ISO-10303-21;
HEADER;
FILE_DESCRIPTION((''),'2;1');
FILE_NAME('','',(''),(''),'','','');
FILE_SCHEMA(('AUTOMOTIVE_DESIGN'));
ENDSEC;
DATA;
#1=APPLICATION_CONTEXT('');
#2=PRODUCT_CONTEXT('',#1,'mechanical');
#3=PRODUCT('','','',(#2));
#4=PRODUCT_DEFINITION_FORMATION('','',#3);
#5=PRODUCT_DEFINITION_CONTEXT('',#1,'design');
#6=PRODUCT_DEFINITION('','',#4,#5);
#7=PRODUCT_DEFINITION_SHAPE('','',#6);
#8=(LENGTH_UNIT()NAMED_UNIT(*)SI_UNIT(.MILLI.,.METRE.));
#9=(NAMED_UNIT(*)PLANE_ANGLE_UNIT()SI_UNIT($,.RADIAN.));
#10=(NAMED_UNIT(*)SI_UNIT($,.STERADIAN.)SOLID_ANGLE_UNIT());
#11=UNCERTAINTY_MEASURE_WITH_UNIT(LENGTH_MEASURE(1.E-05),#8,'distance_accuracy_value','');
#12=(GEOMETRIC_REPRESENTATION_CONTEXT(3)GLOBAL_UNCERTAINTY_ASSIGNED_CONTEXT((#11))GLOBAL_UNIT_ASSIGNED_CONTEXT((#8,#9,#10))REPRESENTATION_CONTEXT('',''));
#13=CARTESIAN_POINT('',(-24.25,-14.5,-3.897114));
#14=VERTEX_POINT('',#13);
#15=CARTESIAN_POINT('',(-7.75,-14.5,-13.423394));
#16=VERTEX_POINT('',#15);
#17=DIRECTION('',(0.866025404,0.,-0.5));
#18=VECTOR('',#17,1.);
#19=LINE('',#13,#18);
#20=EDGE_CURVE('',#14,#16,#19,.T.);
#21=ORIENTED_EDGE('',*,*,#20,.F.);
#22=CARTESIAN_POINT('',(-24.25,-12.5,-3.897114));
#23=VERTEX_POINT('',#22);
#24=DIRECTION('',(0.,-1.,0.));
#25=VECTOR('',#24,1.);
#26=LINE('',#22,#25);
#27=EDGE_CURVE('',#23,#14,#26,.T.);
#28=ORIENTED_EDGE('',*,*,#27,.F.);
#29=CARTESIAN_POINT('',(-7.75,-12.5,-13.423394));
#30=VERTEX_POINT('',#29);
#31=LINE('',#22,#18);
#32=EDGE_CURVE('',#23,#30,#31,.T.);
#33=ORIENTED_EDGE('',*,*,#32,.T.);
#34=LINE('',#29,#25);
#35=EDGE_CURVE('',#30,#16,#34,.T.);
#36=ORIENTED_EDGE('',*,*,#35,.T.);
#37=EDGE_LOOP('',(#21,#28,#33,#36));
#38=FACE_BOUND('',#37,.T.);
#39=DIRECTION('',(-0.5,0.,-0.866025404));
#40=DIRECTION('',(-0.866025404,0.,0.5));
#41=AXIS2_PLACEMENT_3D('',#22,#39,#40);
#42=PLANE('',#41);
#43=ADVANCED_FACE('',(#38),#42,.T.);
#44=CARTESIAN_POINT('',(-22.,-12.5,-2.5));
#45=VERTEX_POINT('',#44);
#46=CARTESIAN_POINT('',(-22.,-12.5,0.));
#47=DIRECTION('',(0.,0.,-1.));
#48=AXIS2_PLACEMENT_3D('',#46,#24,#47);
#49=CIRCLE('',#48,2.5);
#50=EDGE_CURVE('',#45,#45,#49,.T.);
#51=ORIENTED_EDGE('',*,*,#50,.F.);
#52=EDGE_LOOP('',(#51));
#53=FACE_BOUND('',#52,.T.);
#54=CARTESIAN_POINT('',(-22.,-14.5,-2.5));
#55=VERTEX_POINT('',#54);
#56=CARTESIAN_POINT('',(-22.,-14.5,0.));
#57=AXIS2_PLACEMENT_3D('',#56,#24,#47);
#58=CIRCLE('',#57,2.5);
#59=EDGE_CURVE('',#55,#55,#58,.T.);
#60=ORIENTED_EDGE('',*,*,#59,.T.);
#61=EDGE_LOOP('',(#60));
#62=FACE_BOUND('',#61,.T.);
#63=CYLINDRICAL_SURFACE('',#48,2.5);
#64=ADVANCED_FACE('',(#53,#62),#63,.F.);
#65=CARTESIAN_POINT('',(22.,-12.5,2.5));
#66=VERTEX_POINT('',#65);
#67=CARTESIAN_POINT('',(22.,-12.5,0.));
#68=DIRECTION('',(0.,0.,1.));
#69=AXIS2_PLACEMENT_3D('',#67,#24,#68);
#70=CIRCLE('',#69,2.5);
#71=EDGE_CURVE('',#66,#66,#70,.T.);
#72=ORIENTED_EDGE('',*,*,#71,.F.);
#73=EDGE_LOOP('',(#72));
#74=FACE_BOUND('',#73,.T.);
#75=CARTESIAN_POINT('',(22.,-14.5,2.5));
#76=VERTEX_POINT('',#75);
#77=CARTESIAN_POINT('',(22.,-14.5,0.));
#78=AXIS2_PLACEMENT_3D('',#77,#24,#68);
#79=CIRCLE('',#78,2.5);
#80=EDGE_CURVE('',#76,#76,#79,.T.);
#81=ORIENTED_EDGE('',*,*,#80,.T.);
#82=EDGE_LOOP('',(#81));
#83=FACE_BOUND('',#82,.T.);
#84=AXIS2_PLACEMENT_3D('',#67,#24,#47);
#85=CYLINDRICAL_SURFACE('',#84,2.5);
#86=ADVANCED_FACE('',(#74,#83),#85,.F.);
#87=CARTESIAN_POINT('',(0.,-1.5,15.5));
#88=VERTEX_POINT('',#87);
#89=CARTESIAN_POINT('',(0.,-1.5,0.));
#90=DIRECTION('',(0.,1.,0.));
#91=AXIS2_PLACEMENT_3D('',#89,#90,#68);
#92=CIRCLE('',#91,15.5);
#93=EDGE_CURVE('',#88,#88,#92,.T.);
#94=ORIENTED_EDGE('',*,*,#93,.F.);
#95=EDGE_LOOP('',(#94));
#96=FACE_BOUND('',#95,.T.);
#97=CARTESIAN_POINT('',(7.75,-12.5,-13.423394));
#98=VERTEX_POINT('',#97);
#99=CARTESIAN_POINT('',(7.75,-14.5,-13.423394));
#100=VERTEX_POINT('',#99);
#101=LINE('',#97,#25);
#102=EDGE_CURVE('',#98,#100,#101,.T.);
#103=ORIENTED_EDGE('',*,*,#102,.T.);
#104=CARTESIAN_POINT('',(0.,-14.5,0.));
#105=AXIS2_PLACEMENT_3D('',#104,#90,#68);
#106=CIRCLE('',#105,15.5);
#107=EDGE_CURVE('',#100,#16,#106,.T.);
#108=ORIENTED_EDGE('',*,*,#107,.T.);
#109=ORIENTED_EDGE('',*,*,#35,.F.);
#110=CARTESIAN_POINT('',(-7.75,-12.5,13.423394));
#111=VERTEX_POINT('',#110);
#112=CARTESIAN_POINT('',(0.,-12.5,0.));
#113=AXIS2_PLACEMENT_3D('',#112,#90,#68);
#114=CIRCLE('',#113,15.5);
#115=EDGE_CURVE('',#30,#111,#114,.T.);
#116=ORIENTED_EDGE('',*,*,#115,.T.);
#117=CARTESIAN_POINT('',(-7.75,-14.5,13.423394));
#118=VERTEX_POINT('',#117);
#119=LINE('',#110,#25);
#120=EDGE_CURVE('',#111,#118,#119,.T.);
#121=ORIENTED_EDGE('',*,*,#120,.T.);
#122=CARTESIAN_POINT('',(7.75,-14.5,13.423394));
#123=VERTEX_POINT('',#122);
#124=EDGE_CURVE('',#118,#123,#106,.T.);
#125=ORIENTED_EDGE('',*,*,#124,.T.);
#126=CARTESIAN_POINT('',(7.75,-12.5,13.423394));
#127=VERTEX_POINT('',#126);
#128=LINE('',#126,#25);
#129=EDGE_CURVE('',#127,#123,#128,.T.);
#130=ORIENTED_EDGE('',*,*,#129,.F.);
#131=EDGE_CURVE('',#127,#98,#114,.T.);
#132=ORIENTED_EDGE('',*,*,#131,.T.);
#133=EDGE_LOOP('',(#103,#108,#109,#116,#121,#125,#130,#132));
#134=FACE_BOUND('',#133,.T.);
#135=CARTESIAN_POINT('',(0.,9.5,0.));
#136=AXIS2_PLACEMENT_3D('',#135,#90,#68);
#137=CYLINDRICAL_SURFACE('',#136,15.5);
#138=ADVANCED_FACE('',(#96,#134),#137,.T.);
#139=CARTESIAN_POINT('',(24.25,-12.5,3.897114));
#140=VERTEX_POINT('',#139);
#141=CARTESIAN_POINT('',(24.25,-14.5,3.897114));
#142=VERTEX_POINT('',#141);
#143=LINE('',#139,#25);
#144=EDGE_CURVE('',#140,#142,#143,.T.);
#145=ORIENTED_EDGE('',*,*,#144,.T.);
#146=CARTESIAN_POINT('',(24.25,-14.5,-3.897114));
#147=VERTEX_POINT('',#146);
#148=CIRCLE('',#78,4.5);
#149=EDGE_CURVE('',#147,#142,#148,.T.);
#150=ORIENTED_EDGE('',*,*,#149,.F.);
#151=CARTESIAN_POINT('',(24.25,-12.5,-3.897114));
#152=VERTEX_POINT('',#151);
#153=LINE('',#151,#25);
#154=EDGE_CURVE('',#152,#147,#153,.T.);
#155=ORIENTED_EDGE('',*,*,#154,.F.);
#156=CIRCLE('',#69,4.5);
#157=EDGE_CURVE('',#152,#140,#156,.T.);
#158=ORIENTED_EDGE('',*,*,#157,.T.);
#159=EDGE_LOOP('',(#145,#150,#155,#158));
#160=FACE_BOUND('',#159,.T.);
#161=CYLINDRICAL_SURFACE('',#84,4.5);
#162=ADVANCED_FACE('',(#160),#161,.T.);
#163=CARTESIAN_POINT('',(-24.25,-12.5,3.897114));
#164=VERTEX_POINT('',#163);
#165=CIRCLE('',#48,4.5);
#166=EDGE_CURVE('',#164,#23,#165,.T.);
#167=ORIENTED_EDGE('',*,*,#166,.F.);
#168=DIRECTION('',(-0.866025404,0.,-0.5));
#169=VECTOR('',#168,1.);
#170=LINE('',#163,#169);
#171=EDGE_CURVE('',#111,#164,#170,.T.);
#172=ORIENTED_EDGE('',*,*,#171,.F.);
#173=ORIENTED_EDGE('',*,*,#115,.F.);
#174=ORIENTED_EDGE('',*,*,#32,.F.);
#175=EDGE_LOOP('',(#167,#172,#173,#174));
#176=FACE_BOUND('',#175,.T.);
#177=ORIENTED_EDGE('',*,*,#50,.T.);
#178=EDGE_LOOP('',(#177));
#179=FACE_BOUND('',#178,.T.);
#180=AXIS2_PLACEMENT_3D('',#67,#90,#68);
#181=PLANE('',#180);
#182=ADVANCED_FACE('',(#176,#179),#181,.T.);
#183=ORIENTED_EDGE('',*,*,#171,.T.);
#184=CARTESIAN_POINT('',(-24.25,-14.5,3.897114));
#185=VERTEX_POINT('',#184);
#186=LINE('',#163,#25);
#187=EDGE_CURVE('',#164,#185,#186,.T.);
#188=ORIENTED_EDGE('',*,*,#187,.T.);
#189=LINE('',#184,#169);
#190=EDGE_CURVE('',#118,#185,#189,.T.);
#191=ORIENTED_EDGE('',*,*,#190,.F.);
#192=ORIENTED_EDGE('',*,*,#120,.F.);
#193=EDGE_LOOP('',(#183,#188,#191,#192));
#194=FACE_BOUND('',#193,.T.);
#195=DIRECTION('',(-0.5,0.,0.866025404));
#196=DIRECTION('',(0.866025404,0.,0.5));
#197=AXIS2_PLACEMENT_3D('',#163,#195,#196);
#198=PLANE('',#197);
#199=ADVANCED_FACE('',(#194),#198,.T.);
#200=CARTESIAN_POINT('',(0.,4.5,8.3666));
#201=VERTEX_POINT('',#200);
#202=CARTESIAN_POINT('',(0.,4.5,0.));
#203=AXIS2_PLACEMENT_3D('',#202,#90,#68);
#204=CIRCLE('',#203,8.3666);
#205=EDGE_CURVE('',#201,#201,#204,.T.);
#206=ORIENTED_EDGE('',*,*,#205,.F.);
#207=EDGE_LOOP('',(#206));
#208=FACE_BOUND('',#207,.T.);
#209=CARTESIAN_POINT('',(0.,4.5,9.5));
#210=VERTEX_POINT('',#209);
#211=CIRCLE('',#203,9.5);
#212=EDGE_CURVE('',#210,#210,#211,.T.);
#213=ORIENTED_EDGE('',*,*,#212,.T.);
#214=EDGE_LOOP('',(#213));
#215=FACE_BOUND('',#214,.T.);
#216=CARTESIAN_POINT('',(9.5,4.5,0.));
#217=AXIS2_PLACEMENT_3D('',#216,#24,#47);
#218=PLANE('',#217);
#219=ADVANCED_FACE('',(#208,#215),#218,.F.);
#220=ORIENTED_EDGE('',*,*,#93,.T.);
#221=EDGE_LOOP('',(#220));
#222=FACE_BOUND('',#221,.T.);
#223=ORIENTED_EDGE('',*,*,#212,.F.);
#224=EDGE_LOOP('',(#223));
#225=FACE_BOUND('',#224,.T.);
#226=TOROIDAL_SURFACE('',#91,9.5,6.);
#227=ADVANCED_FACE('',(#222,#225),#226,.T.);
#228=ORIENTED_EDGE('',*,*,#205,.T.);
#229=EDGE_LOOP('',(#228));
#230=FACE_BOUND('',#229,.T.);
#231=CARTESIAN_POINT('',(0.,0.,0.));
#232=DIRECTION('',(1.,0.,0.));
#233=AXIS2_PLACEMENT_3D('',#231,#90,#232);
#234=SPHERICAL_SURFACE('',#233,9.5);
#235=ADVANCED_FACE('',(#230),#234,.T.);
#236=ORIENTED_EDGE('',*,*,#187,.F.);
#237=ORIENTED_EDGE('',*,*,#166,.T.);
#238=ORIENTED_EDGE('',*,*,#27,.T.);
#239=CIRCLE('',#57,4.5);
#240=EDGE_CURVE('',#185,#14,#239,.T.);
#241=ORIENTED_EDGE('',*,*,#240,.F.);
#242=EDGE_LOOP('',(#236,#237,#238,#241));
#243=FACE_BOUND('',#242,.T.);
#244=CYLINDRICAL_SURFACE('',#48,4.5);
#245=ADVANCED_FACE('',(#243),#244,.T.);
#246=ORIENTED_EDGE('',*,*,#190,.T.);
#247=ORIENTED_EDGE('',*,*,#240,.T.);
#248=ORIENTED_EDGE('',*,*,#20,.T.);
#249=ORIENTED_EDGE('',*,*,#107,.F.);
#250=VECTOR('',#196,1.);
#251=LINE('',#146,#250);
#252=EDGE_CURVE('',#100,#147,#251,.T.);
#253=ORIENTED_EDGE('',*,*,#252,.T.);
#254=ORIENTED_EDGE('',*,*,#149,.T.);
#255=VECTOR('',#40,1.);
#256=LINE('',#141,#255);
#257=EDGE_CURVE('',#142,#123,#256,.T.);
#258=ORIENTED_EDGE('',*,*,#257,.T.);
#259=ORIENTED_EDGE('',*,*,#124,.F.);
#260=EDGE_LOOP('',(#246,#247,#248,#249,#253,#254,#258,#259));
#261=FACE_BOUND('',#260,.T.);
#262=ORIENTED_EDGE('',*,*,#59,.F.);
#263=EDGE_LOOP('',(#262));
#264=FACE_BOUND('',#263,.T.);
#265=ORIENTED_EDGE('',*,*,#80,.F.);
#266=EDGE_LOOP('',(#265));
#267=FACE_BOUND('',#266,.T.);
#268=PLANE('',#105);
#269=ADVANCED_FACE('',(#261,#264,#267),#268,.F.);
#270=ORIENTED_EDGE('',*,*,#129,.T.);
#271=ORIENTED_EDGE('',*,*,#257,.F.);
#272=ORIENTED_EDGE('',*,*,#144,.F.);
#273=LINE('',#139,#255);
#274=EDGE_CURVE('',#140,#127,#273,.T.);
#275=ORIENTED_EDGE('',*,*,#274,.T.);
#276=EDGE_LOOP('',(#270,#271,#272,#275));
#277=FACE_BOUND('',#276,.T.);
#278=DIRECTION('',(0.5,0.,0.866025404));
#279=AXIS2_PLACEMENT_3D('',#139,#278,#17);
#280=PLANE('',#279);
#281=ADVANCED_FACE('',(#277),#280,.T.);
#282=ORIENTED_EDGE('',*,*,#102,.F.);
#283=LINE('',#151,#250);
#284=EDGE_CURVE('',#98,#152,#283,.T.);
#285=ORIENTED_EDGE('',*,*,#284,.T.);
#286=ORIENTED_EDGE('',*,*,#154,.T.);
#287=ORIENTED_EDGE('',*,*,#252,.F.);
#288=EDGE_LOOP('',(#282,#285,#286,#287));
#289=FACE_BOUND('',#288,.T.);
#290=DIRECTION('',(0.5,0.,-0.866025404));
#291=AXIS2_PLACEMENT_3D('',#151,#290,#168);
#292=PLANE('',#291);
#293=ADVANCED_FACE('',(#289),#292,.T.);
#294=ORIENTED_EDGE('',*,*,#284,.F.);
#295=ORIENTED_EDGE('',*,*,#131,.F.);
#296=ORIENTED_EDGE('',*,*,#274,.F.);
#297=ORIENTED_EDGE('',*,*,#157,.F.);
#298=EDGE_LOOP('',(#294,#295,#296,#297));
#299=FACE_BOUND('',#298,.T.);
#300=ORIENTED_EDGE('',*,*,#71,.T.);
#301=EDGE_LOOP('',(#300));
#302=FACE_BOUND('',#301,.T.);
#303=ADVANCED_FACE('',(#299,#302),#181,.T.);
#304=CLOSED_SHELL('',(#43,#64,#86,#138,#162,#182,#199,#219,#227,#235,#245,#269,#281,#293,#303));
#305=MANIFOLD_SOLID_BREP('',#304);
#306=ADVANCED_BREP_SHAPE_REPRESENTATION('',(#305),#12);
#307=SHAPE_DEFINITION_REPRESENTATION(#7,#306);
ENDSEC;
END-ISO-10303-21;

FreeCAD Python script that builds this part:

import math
import FreeCAD as App
import Part
import Sketcher

V = App.Vector
Q = App.Units.Quantity

doc = App.newDocument("Part")
body = doc.addObject("PartDesign::Body", "Body")

sketch1 = doc.addObject("Sketcher::SketchObject", "Sketch")
body.addObject(sketch1)
sketch1.AttachmentSupport = (doc.XY_Plane, [""])
sketch1.MapMode = "FlatFace"
sketch1.addGeometry(Part.LineSegment(V(0, -14.5, 0), V(15.5, -14.5, 0)), False)
sketch1.addGeometry(Part.LineSegment(V(15.5, -14.5, 0), V(15.5, -1.5, 0)), False)
sketch1.addGeometry(Part.ArcOfCircle(Part.Circle(V(9.5, -1.5, 0), V(0, 0, 1), 6), math.radians(0), math.radians(90)), False)
sketch1.addGeometry(Part.LineSegment(V(9.5, 4.5, 0), V(8.3666, 4.5, 0)), False)
sketch1.addGeometry(Part.ArcOfCircle(Part.Circle(V(0, 0, 0), V(0, 0, 1), 9.5), math.radians(28.273714), math.radians(90)), False)
sketch1.addGeometry(Part.LineSegment(V(0, 9.5, 0), V(0, -14.5, 0)), False)
sketch1.addConstraint(Sketcher.Constraint("Coincident", 0, 2, 1, 1))
sketch1.addConstraint(Sketcher.Constraint("Tangent", 1, 2, 2, 1))
sketch1.addConstraint(Sketcher.Constraint("Tangent", 2, 2, 3, 1))
sketch1.addConstraint(Sketcher.Constraint("Coincident", 3, 2, 4, 1))
sketch1.addConstraint(Sketcher.Constraint("Coincident", 4, 2, 5, 1))
sketch1.addConstraint(Sketcher.Constraint("Coincident", 5, 2, 0, 1))
sketch1.addConstraint(Sketcher.Constraint("Horizontal", 0))
sketch1.addConstraint(Sketcher.Constraint("Vertical", 1))
sketch1.addConstraint(Sketcher.Constraint("Horizontal", 3))
sketch1.addConstraint(Sketcher.Constraint("Vertical", 5))
sketch1.addConstraint(Sketcher.Constraint("Coincident", 4, 3, -1, 1))
sketch1.addConstraint(Sketcher.Constraint("PointOnObject", 4, 2, -2))
sketch1.addConstraint(Sketcher.Constraint("Radius", 2, 6.0))
sketch1.addConstraint(Sketcher.Constraint("Radius", 4, 9.5))
sketch1.addConstraint(Sketcher.Constraint("DistanceY", 1, 1, 1, 2, 13.0))
sketch1.addConstraint(Sketcher.Constraint("DistanceY", 5, 2, 5, 1, 24.0))
sketch1.addConstraint(Sketcher.Constraint("DistanceX", 0, 1, 0, 2, 15.5))
revolution = doc.addObject("PartDesign::Revolution", "Revolution")
body.addObject(revolution)
revolution.Profile = sketch1
revolution.ReferenceAxis = (sketch1, ["V_Axis"])
revolution.Angle = 360

sketch2 = doc.addObject("Sketcher::SketchObject", "Sketch001")
body.addObject(sketch2)
sketch2.AttachmentSupport = (doc.XZ_Plane, [""])
sketch2.MapMode = "FlatFace"
sketch2.AttachmentOffset = App.Placement(V(0, 0, 12.5), App.Rotation())
sketch2.addGeometry(Part.LineSegment(V(-7.75, 13.423394, 0), V(-24.25, 3.897114, 0)), False)
sketch2.addGeometry(Part.ArcOfCircle(Part.Circle(V(-22, 0, 0), V(0, 0, 1), 4.5), math.radians(120), math.radians(240)), False)
sketch2.addGeometry(Part.LineSegment(V(-24.25, -3.897114, 0), V(-7.75, -13.423394, 0)), False)
sketch2.addGeometry(Part.ArcOfCircle(Part.Circle(V(0, 0, 0), V(0, 0, 1), 15.5), math.radians(-120), math.radians(-60)), False)
sketch2.addGeometry(Part.LineSegment(V(7.75, -13.423394, 0), V(24.25, -3.897114, 0)), False)
sketch2.addGeometry(Part.ArcOfCircle(Part.Circle(V(22, 0, 0), V(0, 0, 1), 4.5), math.radians(-60), math.radians(60)), False)
sketch2.addGeometry(Part.LineSegment(V(24.25, 3.897114, 0), V(7.75, 13.423394, 0)), False)
sketch2.addGeometry(Part.ArcOfCircle(Part.Circle(V(0, 0, 0), V(0, 0, 1), 15.5), math.radians(60), math.radians(120)), False)
sketch2.addGeometry(Part.Circle(V(22, 0, 0), V(0, 0, 1), 2.5), False)
sketch2.addGeometry(Part.Circle(V(-22, 0, 0), V(0, 0, 1), 2.5), False)
sketch2.addConstraint(Sketcher.Constraint("Tangent", 0, 2, 1, 1))
sketch2.addConstraint(Sketcher.Constraint("Tangent", 1, 2, 2, 1))
sketch2.addConstraint(Sketcher.Constraint("Tangent", 2, 2, 3, 1))
sketch2.addConstraint(Sketcher.Constraint("Tangent", 3, 2, 4, 1))
sketch2.addConstraint(Sketcher.Constraint("Tangent", 4, 2, 5, 1))
sketch2.addConstraint(Sketcher.Constraint("Tangent", 5, 2, 6, 1))
sketch2.addConstraint(Sketcher.Constraint("Tangent", 6, 2, 7, 1))
sketch2.addConstraint(Sketcher.Constraint("Tangent", 7, 2, 0, 1))
sketch2.addConstraint(Sketcher.Constraint("Coincident", 3, 3, -1, 1))
sketch2.addConstraint(Sketcher.Constraint("Coincident", 7, 3, -1, 1))
sketch2.addConstraint(Sketcher.Constraint("Coincident", 8, 3, 5, 3))
sketch2.addConstraint(Sketcher.Constraint("Coincident", 9, 3, 1, 3))
sketch2.addConstraint(Sketcher.Constraint("Equal", 1, 5))
sketch2.addConstraint(Sketcher.Constraint("Equal", 3, 7))
sketch2.addConstraint(Sketcher.Constraint("Equal", 8, 9))
sketch2.addConstraint(Sketcher.Constraint("Symmetric", 1, 3, 5, 3, -1, 1))
sketch2.addConstraint(Sketcher.Constraint("PointOnObject", 1, 3, -1))
sketch2.addConstraint(Sketcher.Constraint("Diameter", 8, 5.0))
sketch2.addConstraint(Sketcher.Constraint("Radius", 1, 4.5))
sketch2.addConstraint(Sketcher.Constraint("Radius", 3, 15.5))
sketch2.addConstraint(Sketcher.Constraint("Angle", 0, Q("-150 deg")))
pad1 = doc.addObject("PartDesign::Pad", "Pad")
body.addObject(pad1)
pad1.Profile = sketch2
pad1.Length = 2

doc.recompute()
